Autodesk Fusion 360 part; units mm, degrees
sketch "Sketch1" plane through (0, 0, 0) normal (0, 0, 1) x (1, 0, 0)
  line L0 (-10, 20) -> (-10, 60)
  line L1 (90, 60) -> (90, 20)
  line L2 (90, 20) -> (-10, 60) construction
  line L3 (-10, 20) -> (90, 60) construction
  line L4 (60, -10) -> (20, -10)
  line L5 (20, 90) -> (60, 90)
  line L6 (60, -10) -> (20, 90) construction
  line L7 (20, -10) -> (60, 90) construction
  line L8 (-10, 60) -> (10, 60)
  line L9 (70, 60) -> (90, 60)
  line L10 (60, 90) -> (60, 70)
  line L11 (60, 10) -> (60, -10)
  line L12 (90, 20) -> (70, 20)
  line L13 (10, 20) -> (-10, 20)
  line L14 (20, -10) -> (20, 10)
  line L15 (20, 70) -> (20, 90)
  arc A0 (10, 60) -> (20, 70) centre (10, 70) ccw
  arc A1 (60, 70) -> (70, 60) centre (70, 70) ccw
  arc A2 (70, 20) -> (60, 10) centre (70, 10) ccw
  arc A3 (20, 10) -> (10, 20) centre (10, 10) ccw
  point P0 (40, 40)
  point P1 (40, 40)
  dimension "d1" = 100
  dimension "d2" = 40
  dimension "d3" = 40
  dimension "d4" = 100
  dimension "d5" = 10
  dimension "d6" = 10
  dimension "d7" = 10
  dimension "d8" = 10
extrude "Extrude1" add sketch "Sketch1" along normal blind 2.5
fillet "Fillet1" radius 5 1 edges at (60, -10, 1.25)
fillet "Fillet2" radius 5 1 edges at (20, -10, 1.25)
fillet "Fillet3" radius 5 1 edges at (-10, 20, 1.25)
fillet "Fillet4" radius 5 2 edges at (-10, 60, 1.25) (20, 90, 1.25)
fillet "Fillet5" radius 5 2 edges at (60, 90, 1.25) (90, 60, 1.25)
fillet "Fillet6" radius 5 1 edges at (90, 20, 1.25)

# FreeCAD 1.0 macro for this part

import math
import FreeCAD as App
import Part
import Sketcher
from FreeCAD import Vector


def edges_at(feature, points):
    """Names of the edges that pass closest to the given points."""
    edges = feature.Shape.Edges
    near = lambda p: min(range(len(edges)), key=lambda i: edges[i].distToShape(Part.Vertex(*p))[0])
    return sorted({f"Edge{near(p) + 1}" for p in points})

doc = App.newDocument("Part")
body = doc.addObject("PartDesign::Body", "Body")

# Sketch on XY plane
sketch1 = doc.addObject("Sketcher::SketchObject", "Sketch")
body.addObject(sketch1)
sketch1.AttachmentSupport = (doc.XY_Plane, [""])
sketch1.MapMode = "FlatFace"
sketch1.addGeometry([
    Part.LineSegment(Vector(-10, 60, 0), Vector(-10, 20, 0)),  # 0
    Part.LineSegment(Vector(-10, 20, 0), Vector(10, 20, 0)),  # 1
    Part.ArcOfCircle(Part.Circle(Vector(10, 10, 0), Vector(0, 0, 1), 10), math.radians(0), math.radians(90)),  # 2
    Part.LineSegment(Vector(20, 10, 0), Vector(20, -10, 0)),  # 3
    Part.LineSegment(Vector(20, -10, 0), Vector(60, -10, 0)),  # 4
    Part.LineSegment(Vector(60, -10, 0), Vector(60, 10, 0)),  # 5
    Part.ArcOfCircle(Part.Circle(Vector(70, 10, 0), Vector(0, 0, 1), 10), math.radians(90), math.radians(180)),  # 6
    Part.LineSegment(Vector(70, 20, 0), Vector(90, 20, 0)),  # 7
    Part.LineSegment(Vector(90, 20, 0), Vector(90, 60, 0)),  # 8
    Part.LineSegment(Vector(90, 60, 0), Vector(70, 60, 0)),  # 9
    Part.ArcOfCircle(Part.Circle(Vector(70, 70, 0), Vector(0, 0, 1), 10), math.radians(180), math.radians(270)),  # 10
    Part.LineSegment(Vector(60, 70, 0), Vector(60, 90, 0)),  # 11
    Part.LineSegment(Vector(60, 90, 0), Vector(20, 90, 0)),  # 12
    Part.LineSegment(Vector(20, 90, 0), Vector(20, 70, 0)),  # 13
    Part.ArcOfCircle(Part.Circle(Vector(10, 70, 0), Vector(0, 0, 1), 10), math.radians(-90), math.radians(0)),  # 14
    Part.LineSegment(Vector(10, 60, 0), Vector(-10, 60, 0)),  # 15
], False)
sketch1.addConstraint([
    Sketcher.Constraint("Coincident", 0, 2, 1, 1),
    Sketcher.Constraint("Tangent", 1, 2, 2, 2),
    Sketcher.Constraint("Tangent", 2, 1, 3, 1),
    Sketcher.Constraint("Coincident", 3, 2, 4, 1),
    Sketcher.Constraint("Coincident", 4, 2, 5, 1),
    Sketcher.Constraint("Tangent", 5, 2, 6, 2),
    Sketcher.Constraint("Tangent", 6, 1, 7, 1),
    Sketcher.Constraint("Coincident", 7, 2, 8, 1),
    Sketcher.Constraint("Coincident", 8, 2, 9, 1),
    Sketcher.Constraint("Tangent", 9, 2, 10, 2),
    Sketcher.Constraint("Tangent", 10, 1, 11, 1),
    Sketcher.Constraint("Coincident", 11, 2, 12, 1),
    Sketcher.Constraint("Coincident", 12, 2, 13, 1),
    Sketcher.Constraint("Tangent", 13, 2, 14, 2),
    Sketcher.Constraint("Tangent", 14, 1, 15, 1),
    Sketcher.Constraint("Coincident", 15, 2, 0, 1),
    Sketcher.Constraint("Vertical", 0),
    Sketcher.Constraint("Horizontal", 1),
    Sketcher.Constraint("Vertical", 3),
    Sketcher.Constraint("Horizontal", 4),
    Sketcher.Constraint("Vertical", 5),
    Sketcher.Constraint("Horizontal", 7),
    Sketcher.Constraint("Vertical", 8),
    Sketcher.Constraint("Horizontal", 9),
    Sketcher.Constraint("Vertical", 11),
    Sketcher.Constraint("Horizontal", 12),
    Sketcher.Constraint("Vertical", 13),
    Sketcher.Constraint("Horizontal", 15),
    Sketcher.Constraint("Equal", 2, 6),
    Sketcher.Constraint("Equal", 6, 10),
    Sketcher.Constraint("Equal", 10, 14),
    Sketcher.Constraint("Horizontal", 2, 3, 6, 3),
    Sketcher.Constraint("Horizontal", 10, 3, 14, 3),
    Sketcher.Constraint("Vertical", 6, 3, 10, 3),
    Sketcher.Constraint("Vertical", 2, 3, 14, 3),
    Sketcher.Constraint("Equal", 1, 7),
    Sketcher.Constraint("Equal", 12, 0),
    Sketcher.Constraint("Equal", 15, 3),
    Sketcher.Constraint("Equal", 5, 11),
    Sketcher.Constraint("Radius", 2, 10.0),
    Sketcher.Constraint("DistanceX", 4, 1, 4, 2, 40.0),
    Sketcher.Constraint("DistanceX", -1, 1, 2, 3, 10.0),
    Sketcher.Constraint("DistanceY", -1, 1, 2, 3, 10.0),
    Sketcher.Constraint("DistanceX", 0, 2, -1, 1, 10.0),
])
pad1 = doc.addObject("PartDesign::Pad", "Pad")
body.addObject(pad1)
pad1.Profile = sketch1
pad1.Length = 2.5
doc.recompute()

fillet = doc.addObject("PartDesign::Fillet", "Fillet")
body.addObject(fillet)
fillet.Base = (pad1, edges_at(pad1, [(60, -10, 1.25)]))
fillet.Radius = 5
doc.recompute()

fillet2 = doc.addObject("PartDesign::Fillet", "Fillet001")
body.addObject(fillet2)
fillet2.Base = (fillet, edges_at(fillet, [(20, -10, 1.25)]))
fillet2.Radius = 5
doc.recompute()

fillet3 = doc.addObject("PartDesign::Fillet", "Fillet002")
body.addObject(fillet3)
fillet3.Base = (fillet2, edges_at(fillet2, [(-10, 20, 1.25)]))
fillet3.Radius = 5
doc.recompute()

fillet4 = doc.addObject("PartDesign::Fillet", "Fillet003")
body.addObject(fillet4)
fillet4.Base = (fillet3, edges_at(fillet3, [(-10, 60, 1.25), (20, 90, 1.25)]))
fillet4.Radius = 5
doc.recompute()

fillet5 = doc.addObject("PartDesign::Fillet", "Fillet004")
body.addObject(fillet5)
fillet5.Base = (fillet4, edges_at(fillet4, [(60, 90, 1.25), (90, 60, 1.25)]))
fillet5.Radius = 5
doc.recompute()

fillet6 = doc.addObject("PartDesign::Fillet", "Fillet005")
body.addObject(fillet6)
fillet6.Base = (fillet5, edges_at(fillet5, [(90, 20, 1.25)]))
fillet6.Radius = 5

doc.recompute()
